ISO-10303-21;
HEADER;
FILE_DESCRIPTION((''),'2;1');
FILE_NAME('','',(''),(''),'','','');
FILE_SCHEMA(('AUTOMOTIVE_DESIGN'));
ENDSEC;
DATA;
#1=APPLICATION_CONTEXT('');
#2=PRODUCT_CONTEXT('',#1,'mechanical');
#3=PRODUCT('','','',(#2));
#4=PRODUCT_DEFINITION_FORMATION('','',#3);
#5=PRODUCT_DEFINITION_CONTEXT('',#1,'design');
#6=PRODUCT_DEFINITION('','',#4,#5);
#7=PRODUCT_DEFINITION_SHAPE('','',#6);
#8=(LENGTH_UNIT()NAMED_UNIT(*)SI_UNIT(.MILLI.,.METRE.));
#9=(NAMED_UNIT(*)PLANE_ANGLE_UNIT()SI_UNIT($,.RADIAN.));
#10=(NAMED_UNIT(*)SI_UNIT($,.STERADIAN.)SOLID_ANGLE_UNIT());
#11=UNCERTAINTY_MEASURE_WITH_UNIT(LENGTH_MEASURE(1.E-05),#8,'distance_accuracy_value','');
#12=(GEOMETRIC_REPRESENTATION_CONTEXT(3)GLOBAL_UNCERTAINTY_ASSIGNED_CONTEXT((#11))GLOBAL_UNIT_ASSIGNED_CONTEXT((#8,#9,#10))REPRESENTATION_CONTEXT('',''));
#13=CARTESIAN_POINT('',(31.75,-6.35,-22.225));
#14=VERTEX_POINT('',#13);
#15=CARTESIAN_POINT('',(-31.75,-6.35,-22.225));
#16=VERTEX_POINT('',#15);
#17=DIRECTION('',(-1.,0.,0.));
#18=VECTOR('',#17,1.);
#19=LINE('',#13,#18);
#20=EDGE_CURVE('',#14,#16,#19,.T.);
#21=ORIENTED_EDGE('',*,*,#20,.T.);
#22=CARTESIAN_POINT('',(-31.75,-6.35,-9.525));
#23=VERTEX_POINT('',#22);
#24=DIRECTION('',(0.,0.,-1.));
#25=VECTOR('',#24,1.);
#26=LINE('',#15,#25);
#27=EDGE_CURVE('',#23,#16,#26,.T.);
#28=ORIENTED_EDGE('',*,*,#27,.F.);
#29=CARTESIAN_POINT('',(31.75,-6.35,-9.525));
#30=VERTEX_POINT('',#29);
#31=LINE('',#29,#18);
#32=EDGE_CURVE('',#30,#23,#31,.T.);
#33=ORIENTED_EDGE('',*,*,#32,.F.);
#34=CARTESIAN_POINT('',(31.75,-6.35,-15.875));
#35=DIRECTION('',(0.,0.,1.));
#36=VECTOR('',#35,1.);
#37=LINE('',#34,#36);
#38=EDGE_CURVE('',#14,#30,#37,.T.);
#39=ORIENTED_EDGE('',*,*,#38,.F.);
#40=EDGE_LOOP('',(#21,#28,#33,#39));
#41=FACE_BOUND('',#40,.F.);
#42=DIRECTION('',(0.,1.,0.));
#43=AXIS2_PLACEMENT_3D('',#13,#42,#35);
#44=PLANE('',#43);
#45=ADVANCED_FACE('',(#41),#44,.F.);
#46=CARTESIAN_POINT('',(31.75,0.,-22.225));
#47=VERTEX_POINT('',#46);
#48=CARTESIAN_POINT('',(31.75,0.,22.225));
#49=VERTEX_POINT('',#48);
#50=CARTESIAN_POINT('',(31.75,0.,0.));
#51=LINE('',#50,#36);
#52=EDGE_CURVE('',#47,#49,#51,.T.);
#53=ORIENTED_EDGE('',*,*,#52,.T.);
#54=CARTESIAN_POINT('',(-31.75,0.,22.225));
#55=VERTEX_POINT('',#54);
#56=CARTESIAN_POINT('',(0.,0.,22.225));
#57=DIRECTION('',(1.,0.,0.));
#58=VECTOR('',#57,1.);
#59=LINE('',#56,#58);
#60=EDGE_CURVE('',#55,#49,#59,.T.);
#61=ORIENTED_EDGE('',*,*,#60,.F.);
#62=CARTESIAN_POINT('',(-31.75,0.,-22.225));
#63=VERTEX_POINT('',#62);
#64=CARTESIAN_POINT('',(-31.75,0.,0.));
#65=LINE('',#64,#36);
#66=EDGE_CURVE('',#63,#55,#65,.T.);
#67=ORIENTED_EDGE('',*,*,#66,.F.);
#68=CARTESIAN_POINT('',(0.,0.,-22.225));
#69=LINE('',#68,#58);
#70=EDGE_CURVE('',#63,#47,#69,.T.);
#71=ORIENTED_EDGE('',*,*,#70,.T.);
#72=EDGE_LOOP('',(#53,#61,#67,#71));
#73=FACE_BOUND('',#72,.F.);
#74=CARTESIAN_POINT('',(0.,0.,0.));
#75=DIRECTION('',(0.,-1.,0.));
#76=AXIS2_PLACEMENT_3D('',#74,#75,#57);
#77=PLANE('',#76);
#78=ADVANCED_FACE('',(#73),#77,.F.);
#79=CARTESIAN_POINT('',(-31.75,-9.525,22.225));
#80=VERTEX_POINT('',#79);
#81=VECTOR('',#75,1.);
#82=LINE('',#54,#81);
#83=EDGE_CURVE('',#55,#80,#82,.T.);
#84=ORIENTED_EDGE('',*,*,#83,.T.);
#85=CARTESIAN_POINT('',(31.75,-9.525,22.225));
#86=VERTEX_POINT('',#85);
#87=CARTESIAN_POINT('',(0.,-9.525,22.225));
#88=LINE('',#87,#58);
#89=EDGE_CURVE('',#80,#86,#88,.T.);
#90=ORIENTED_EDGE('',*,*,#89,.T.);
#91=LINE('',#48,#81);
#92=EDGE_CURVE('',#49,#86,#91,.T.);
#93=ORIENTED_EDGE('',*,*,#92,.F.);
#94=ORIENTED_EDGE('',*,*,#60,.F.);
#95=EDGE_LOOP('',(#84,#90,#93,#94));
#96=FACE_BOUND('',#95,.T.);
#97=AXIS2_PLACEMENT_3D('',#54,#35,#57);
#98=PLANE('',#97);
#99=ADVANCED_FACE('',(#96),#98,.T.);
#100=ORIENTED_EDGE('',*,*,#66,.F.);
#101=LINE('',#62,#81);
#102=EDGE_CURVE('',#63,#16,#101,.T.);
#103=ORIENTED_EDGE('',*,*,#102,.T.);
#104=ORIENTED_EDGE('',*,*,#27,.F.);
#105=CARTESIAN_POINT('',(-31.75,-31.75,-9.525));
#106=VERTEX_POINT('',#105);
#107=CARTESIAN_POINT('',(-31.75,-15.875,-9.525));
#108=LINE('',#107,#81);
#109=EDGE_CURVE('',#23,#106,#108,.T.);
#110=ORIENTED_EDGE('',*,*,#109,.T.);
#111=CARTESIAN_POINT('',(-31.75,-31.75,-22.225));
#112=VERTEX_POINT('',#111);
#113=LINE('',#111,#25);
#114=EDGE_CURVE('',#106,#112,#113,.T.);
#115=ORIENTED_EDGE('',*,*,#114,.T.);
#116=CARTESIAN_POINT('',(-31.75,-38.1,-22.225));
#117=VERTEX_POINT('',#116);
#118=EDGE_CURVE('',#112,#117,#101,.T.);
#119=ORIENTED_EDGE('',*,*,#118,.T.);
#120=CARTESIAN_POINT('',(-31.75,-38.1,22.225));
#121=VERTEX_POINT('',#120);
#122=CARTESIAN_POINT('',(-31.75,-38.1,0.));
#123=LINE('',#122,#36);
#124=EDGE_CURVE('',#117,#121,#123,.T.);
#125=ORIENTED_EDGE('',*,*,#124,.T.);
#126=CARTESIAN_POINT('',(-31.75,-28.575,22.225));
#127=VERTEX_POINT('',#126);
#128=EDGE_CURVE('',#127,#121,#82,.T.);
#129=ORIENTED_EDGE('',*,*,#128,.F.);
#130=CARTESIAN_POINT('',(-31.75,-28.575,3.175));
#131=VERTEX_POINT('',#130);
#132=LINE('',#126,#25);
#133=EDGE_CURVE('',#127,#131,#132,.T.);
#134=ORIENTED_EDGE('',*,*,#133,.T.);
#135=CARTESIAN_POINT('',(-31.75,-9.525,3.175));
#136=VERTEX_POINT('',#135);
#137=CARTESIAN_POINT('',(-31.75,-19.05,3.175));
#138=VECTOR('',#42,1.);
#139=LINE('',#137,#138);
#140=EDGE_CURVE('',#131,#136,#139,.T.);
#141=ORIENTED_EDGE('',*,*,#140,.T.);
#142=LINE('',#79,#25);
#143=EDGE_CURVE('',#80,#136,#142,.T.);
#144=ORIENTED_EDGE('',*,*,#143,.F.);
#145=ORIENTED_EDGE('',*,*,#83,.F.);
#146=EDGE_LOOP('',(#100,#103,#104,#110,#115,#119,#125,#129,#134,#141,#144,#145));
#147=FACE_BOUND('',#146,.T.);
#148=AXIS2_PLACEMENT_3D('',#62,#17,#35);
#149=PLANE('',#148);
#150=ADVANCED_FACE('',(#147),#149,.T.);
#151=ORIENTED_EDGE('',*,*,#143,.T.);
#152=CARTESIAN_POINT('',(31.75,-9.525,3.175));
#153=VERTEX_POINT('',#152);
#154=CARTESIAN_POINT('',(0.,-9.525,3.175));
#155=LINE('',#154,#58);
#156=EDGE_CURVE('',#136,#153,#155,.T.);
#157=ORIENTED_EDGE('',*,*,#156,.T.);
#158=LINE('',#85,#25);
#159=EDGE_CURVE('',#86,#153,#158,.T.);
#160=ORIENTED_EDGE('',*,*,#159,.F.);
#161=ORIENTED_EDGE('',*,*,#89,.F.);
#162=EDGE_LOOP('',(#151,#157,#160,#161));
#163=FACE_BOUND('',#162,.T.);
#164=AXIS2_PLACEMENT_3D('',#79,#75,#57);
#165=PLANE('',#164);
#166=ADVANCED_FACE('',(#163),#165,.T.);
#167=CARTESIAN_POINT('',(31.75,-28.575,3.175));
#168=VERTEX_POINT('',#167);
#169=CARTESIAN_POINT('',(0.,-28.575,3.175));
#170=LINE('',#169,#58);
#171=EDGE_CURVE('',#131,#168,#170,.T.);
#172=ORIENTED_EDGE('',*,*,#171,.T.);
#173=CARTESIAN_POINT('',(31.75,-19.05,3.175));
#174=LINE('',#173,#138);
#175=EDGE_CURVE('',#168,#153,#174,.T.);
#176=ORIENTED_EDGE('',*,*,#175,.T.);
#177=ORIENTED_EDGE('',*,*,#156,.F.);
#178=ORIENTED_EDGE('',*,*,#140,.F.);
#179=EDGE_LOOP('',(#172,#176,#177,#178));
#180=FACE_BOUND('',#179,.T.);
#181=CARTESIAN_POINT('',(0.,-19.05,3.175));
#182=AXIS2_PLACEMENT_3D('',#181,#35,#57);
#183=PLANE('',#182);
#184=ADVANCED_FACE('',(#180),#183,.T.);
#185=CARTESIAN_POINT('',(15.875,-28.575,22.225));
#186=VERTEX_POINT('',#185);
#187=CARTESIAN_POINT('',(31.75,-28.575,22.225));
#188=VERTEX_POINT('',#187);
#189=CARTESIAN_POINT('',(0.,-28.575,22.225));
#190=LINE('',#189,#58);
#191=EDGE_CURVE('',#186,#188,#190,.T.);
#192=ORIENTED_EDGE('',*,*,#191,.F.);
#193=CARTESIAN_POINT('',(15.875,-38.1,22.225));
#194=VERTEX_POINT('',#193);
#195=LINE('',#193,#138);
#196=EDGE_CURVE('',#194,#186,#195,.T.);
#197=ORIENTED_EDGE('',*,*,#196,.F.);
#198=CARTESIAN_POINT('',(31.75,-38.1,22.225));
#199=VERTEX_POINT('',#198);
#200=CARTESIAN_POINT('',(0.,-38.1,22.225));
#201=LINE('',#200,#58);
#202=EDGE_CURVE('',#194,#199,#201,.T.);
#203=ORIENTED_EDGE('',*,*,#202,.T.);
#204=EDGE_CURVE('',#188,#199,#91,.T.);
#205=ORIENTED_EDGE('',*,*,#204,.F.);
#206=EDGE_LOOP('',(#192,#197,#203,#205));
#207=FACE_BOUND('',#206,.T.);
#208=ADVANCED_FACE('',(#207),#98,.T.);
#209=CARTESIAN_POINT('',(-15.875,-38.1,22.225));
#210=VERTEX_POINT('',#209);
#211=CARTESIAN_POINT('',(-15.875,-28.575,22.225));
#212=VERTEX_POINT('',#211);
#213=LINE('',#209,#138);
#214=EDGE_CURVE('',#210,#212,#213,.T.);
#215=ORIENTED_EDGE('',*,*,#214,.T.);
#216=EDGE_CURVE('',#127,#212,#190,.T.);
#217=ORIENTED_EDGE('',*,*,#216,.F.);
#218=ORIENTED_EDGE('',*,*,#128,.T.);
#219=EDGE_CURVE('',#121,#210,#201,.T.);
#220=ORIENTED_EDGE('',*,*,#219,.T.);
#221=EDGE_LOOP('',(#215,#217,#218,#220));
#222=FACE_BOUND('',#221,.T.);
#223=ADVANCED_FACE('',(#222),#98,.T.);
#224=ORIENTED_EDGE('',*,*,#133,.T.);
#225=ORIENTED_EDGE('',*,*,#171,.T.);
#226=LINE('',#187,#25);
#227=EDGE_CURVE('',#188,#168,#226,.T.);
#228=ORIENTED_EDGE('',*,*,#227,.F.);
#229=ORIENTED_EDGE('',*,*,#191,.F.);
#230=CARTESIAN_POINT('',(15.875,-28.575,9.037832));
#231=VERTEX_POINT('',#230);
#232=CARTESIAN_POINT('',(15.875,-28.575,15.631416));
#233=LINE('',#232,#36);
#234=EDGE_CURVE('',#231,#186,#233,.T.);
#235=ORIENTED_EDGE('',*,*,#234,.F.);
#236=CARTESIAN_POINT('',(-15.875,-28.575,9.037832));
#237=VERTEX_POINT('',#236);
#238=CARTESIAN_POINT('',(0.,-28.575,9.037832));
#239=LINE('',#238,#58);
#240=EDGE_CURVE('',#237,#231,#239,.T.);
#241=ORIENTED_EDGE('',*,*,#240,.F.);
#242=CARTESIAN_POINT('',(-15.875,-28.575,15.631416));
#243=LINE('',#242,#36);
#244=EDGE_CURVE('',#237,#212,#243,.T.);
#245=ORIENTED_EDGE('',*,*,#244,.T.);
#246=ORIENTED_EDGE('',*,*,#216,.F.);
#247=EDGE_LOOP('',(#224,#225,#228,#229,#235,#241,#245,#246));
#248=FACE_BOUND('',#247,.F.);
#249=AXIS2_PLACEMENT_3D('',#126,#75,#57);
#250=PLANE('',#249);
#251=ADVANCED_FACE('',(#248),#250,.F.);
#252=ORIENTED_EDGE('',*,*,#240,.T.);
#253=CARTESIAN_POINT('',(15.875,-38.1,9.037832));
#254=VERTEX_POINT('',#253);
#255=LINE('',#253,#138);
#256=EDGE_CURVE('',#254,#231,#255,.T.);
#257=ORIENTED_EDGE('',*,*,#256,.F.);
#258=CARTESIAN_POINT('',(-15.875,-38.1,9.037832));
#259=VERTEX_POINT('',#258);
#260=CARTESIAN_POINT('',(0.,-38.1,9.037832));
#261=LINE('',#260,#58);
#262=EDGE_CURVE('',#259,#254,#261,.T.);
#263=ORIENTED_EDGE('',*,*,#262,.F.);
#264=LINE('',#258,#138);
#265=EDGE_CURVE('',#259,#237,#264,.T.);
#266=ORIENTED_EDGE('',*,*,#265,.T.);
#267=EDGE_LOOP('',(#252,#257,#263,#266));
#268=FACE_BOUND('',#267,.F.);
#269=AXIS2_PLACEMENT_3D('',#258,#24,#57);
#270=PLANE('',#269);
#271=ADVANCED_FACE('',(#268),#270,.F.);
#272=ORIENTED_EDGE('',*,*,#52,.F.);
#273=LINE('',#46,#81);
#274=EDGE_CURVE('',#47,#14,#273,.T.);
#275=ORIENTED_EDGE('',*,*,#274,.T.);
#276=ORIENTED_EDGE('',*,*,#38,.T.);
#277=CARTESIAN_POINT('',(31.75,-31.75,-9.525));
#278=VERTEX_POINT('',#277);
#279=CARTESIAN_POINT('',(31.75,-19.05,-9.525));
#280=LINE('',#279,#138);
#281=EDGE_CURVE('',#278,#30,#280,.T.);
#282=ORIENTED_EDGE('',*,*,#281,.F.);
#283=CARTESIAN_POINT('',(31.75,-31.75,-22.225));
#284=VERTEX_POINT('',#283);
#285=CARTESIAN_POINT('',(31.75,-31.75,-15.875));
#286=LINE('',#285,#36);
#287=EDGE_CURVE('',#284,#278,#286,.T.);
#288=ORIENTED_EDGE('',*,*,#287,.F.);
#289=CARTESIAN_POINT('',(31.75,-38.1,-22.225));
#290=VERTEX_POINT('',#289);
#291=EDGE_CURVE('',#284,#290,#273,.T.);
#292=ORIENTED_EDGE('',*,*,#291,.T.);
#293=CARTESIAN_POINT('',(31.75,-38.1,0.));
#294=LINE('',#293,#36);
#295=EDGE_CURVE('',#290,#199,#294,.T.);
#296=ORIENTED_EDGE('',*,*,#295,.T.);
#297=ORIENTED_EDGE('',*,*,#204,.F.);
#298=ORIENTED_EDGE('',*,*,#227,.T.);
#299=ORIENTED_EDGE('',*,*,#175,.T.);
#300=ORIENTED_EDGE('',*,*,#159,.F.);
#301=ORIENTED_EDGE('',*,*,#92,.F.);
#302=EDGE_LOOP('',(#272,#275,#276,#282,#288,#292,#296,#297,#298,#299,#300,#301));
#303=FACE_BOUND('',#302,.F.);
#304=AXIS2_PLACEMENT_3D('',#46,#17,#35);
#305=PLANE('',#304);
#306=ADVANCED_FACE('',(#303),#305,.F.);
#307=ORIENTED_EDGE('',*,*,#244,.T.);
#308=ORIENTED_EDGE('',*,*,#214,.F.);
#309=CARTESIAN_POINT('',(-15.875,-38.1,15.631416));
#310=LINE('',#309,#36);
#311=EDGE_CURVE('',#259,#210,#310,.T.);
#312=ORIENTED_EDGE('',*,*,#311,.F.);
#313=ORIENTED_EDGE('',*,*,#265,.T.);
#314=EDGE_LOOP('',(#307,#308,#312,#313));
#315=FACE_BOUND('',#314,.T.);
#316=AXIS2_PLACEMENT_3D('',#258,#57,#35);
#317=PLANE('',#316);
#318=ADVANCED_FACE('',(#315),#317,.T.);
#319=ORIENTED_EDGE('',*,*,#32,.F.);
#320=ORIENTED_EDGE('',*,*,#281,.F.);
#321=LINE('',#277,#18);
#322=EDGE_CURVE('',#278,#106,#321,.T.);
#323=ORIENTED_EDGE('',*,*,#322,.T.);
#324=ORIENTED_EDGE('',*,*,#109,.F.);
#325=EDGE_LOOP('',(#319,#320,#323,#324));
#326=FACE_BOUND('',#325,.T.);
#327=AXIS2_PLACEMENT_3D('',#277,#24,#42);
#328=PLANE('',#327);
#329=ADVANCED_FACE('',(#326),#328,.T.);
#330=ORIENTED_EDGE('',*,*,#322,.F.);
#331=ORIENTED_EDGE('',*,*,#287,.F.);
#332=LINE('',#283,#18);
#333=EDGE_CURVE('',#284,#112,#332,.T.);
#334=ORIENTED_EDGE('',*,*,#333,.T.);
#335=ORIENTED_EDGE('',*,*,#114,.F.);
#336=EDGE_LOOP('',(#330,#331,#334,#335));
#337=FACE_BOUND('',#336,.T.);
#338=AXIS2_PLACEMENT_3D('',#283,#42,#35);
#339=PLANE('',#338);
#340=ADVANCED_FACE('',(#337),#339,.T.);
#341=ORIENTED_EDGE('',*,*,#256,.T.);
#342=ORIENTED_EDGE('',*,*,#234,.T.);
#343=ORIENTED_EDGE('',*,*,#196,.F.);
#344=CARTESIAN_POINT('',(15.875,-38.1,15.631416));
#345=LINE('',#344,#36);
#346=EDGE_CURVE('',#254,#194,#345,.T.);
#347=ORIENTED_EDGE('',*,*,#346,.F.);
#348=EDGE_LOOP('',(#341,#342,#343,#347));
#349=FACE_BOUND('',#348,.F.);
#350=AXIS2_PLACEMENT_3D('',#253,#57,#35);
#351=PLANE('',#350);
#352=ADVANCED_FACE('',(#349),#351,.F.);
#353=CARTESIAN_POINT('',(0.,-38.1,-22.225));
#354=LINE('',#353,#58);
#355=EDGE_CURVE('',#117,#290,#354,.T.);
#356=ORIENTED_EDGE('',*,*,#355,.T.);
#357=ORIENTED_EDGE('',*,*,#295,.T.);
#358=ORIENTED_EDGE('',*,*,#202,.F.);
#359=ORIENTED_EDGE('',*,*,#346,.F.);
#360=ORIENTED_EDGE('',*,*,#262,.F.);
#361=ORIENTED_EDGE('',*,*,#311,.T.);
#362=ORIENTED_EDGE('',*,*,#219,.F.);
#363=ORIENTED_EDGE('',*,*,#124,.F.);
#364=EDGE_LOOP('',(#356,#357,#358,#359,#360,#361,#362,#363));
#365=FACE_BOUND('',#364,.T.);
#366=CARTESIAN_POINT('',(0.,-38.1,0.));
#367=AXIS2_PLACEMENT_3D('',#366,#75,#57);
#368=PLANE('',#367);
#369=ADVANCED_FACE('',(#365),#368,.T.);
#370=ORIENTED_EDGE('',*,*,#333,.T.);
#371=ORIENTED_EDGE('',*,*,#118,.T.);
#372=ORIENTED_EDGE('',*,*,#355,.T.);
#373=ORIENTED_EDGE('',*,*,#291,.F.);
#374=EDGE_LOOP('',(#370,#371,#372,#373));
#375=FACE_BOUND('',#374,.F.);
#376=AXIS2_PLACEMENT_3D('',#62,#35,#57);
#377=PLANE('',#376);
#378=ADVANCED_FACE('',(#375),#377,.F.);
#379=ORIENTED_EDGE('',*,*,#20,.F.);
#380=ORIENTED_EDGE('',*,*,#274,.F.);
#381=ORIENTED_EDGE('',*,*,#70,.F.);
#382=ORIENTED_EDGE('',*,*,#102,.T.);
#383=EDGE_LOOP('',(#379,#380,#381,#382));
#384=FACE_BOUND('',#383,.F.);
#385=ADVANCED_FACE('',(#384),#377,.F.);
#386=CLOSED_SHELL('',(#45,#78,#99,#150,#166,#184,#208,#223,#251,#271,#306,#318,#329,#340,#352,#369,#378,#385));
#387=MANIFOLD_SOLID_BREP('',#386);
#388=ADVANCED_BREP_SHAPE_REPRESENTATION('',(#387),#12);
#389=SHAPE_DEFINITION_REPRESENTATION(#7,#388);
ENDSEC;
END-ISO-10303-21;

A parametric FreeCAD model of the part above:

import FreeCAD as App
import Part
import Sketcher

V = App.Vector
Q = App.Units.Quantity


def add_polygon(sketch, points):
    """Adds a closed chain of lines whose ends are joined by coincident constraints."""
    first, n = sketch.GeometryCount, len(points)
    for a, b in zip(points, points[1:] + points[:1]):
        sketch.addGeometry(Part.LineSegment(App.Vector(*a, 0), App.Vector(*b, 0)), False)
    for i in range(n):
        sketch.addConstraint(Sketcher.Constraint("Coincident", first + i, 2, first + (i + 1) % n, 1))

doc = App.newDocument("Part")
body = doc.addObject("PartDesign::Body", "Body")

sketch1 = body.newObject("Sketcher::SketchObject", "Sketch")
sketch1.AttachmentSupport = (doc.getObject("XZ_Plane"), [""])
sketch1.MapMode = "FlatFace"
add_polygon(sketch1, [(-31.75, 22.225), (-31.75, -22.225), (31.75, -22.225), (31.75, 22.225)])
sketch1.addConstraint([
    Sketcher.Constraint("Vertical", 0),
    Sketcher.Constraint("Horizontal", 1),
    Sketcher.Constraint("Vertical", 2),
    Sketcher.Constraint("Horizontal", 3),
    Sketcher.Constraint("Symmetric", 0, 2, 2, 2, -1, 1),
    Sketcher.Constraint("DistanceX", 1, 1, 1, 2, Q("2.5 in")),
    Sketcher.Constraint("DistanceY", 0, 2, 0, 1, Q("1.75 in")),
])
pad1 = body.newObject("PartDesign::Pad", "Pad")
pad1.Profile = sketch1
pad1.Length = Q("1.5 in")

sketch2 = body.newObject("Sketcher::SketchObject", "Sketch001")
sketch2.AttachmentSupport = (doc.getObject("XZ_Plane"), [""])
sketch2.MapMode = "FlatFace"
sketch2.AttachmentOffset = App.Placement(V(0, 0, 1.5 * 25.4), App.Rotation())
add_polygon(sketch2, [(-15.875, 22.225), (-15.875, 9.037832), (15.875, 9.037832), (15.875, 22.225)])
sketch2.addConstraint([
    Sketcher.Constraint("Vertical", 0),
    Sketcher.Constraint("Horizontal", 1),
    Sketcher.Constraint("Vertical", 2),
    Sketcher.Constraint("Horizontal", 3),
    Sketcher.Constraint("DistanceX", 1, 1, 1, 2, Q("1.25 in")),
    Sketcher.Constraint("DistanceX", 0, 2, -1, 1, Q("0.625 in")),
    Sketcher.Constraint("DistanceY", -1, 1, 2, 2, Q("0.875 in")),
    Sketcher.Constraint("DistanceY", 0, 2, 0, 1, 13.187168),
])
pocket1 = body.newObject("PartDesign::Pocket", "Pocket")
pocket1.Profile = sketch2
pocket1.Length = Q("0.375 in")

sketch3 = body.newObject("Sketcher::SketchObject", "Sketch002")
sketch3.AttachmentSupport = (doc.getObject("XY_Plane"), [""])
sketch3.MapMode = "FlatFace"
sketch3.AttachmentOffset = App.Placement(V(0, 0, 0.875 * 25.4), App.Rotation())
add_polygon(sketch3, [(-31.75, -9.525), (-31.75, -28.575), (31.75, -28.575), (31.75, -9.525)])
sketch3.addConstraint([
    Sketcher.Constraint("Vertical", 0),
    Sketcher.Constraint("Horizontal", 1),
    Sketcher.Constraint("Vertical", 2),
    Sketcher.Constraint("Horizontal", 3),
    Sketcher.Constraint("DistanceX", 1, 1, 1, 2, Q("2.5 in")),
    Sketcher.Constraint("DistanceY", 0, 2, 0, 1, Q("0.75 in")),
    Sketcher.Constraint("DistanceX", 0, 2, -1, 1, Q("1.25 in")),
    Sketcher.Constraint("DistanceY", 0, 2, -1, 1, Q("1.125 in")),
])
pocket2 = body.newObject("PartDesign::Pocket", "Pocket001")
pocket2.Profile = sketch3
pocket2.Length = Q("0.75 in")

sketch4 = body.newObject("Sketcher::SketchObject", "Sketch003")
sketch4.AttachmentSupport = (doc.getObject("YZ_Plane"), [""])
sketch4.MapMode = "FlatFace"
sketch4.AttachmentOffset = App.Placement(V(0, 0, 1.25 * 25.4), App.Rotation())
add_polygon(sketch4, [(-31.75, -9.525), (-31.75, -22.225), (-6.35, -22.225), (-6.35, -9.525)])
sketch4.addConstraint([
    Sketcher.Constraint("Vertical", 0),
    Sketcher.Constraint("Horizontal", 1),
    Sketcher.Constraint("Vertical", 2),
    Sketcher.Constraint("Horizontal", 3),
    Sketcher.Constraint("DistanceX", 1, 1, 1, 2, Q("1 in")),
    Sketcher.Constraint("DistanceY", 0, 2, 0, 1, Q("0.5 in")),
    Sketcher.Constraint("DistanceX", 0, 2, -1, 1, Q("1.25 in")),
    Sketcher.Constraint("DistanceY", 0, 2, -1, 1, Q("0.875 in")),
])
pocket3 = body.newObject("PartDesign::Pocket", "Pocket002")
pocket3.Profile = sketch4
pocket3.Type = "ThroughAll"

doc.recompute()
